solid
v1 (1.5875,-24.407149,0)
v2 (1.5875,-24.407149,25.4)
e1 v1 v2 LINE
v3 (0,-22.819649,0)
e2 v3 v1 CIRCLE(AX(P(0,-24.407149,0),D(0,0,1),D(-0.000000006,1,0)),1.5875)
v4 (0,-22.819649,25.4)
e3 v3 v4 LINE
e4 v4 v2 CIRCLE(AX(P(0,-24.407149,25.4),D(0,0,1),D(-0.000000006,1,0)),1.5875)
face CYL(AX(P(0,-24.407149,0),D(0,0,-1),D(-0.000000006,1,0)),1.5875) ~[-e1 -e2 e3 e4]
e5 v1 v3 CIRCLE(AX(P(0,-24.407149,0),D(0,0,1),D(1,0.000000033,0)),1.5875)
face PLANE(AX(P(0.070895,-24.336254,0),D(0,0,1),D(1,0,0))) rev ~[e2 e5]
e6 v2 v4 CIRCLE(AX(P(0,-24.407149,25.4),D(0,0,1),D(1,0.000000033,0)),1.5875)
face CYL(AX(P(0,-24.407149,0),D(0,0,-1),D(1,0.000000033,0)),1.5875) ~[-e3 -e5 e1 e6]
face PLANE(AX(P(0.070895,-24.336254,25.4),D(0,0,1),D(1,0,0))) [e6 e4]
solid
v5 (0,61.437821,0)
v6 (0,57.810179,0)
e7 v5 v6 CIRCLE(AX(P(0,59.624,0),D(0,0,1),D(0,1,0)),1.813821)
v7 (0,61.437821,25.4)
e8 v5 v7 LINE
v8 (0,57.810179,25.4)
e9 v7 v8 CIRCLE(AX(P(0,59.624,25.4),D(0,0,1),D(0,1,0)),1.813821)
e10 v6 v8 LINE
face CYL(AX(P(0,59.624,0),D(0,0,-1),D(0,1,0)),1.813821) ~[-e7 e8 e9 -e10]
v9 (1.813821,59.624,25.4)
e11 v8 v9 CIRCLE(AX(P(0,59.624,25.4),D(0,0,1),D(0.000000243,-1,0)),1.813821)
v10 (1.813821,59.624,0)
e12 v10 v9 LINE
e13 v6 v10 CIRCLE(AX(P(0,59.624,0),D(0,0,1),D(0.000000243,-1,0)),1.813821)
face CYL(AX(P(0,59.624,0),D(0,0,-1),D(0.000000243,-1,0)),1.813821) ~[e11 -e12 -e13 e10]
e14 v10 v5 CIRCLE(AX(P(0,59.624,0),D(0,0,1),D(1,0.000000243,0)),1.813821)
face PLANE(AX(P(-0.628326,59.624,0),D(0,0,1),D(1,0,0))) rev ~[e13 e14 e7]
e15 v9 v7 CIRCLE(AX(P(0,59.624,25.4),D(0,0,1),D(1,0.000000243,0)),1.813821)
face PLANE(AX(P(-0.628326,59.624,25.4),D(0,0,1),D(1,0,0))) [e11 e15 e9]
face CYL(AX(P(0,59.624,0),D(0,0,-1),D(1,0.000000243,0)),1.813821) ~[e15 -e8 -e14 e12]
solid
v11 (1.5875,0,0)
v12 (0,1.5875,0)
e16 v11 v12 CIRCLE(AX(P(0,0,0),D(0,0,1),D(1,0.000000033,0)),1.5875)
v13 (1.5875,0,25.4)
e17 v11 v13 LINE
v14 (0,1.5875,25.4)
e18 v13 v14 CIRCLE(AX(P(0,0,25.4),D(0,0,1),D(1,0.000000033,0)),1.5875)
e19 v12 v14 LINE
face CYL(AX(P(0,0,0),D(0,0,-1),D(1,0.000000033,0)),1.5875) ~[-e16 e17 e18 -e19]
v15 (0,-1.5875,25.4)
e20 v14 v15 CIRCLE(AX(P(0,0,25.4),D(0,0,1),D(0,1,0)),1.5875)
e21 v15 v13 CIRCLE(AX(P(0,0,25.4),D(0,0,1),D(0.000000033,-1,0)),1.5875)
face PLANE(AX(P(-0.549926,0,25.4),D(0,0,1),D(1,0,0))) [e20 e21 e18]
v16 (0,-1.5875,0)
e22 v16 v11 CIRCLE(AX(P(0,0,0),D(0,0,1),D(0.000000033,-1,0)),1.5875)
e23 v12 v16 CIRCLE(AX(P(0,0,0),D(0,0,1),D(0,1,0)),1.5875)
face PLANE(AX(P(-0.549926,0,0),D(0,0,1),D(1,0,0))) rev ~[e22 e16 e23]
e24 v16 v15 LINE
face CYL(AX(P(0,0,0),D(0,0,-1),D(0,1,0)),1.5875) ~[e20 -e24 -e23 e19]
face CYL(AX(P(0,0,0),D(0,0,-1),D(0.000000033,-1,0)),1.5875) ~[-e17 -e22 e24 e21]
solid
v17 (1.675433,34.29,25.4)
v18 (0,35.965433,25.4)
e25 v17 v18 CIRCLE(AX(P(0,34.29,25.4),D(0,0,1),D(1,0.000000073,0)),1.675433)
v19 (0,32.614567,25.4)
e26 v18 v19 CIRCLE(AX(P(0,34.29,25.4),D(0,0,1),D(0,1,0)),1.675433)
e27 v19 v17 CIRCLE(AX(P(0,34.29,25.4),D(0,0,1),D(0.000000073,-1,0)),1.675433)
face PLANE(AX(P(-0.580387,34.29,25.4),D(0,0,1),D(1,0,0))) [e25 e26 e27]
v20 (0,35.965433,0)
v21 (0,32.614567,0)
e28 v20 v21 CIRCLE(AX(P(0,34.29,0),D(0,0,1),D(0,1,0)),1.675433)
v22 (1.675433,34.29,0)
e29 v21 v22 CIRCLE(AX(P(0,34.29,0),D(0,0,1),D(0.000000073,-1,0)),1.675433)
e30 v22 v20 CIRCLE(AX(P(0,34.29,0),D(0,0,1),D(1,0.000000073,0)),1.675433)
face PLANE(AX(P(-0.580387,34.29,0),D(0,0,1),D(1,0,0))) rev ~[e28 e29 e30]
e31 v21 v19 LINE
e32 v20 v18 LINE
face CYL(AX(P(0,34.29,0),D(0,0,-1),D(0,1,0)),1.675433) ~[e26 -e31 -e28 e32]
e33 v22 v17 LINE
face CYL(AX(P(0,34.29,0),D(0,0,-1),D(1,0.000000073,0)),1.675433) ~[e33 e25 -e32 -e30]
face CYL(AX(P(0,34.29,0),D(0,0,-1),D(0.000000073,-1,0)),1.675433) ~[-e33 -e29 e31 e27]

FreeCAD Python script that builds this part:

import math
import FreeCAD as App
import Part
import Sketcher
from FreeCAD import Vector
Q = App.Units.Quantity

doc = App.newDocument("Part")
body = doc.addObject("PartDesign::Body", "Body")
body.AllowCompound = True

sketch1 = body.newObject("Sketcher::SketchObject", "Sketch")
sketch1.AttachmentSupport = (doc.getObject("XY_Plane"), [""])
sketch1.MapMode = "FlatFace"
sketch1.addGeometry([
    Part.ArcOfCircle(Part.Circle(Vector(0, 59.624, 0), Vector(0, 0, 1), 1.813821), math.radians(90), math.radians(270)),
    Part.ArcOfCircle(Part.Circle(Vector(0, 59.624, 0), Vector(0, 0, 1), 1.813821), math.radians(-89.999986), math.radians(-0.000014)),
    Part.ArcOfCircle(Part.Circle(Vector(0, 59.624, 0), Vector(0, 0, 1), 1.813821), math.radians(0.000014), math.radians(89.999986)),
    Part.ArcOfCircle(Part.Circle(Vector(0, 34.29, 0), Vector(0, 0, 1), 1.675433), math.radians(90), math.radians(270)),
    Part.ArcOfCircle(Part.Circle(Vector(0, 34.29, 0), Vector(0, 0, 1), 1.675433), math.radians(-89.999996), math.radians(-0.000004)),
    Part.ArcOfCircle(Part.Circle(Vector(0, 34.29, 0), Vector(0, 0, 1), 1.675433), math.radians(0.000004), math.radians(89.999996)),
    Part.ArcOfCircle(Part.Circle(Vector(0, 0, 0), Vector(0, 0, 1), 1.5875), math.radians(90), math.radians(270)),
    Part.ArcOfCircle(Part.Circle(Vector(0, 0, 0), Vector(0, 0, 1), 1.5875), math.radians(-89.999998), math.radians(-0.000002)),
    Part.ArcOfCircle(Part.Circle(Vector(0, 0, 0), Vector(0, 0, 1), 1.5875), math.radians(0.000002), math.radians(89.999998)),
    Part.ArcOfCircle(Part.Circle(Vector(0, -24.407149, 0), Vector(0, 0, 1), 1.5875), math.radians(0.000002), math.radians(89.999998)),
    Part.ArcOfCircle(Part.Circle(Vector(0, -24.407149, 0), Vector(0, 0, 1), 1.5875), math.radians(90), math.radians(360)),
], False)
sketch1.addConstraint([
    Sketcher.Constraint("Tangent", 0, 2, 1, 1),
    Sketcher.Constraint("Tangent", 1, 2, 2, 1),
    Sketcher.Constraint("Tangent", 2, 2, 0, 1),
    Sketcher.Constraint("Tangent", 3, 2, 4, 1),
    Sketcher.Constraint("Tangent", 4, 2, 5, 1),
    Sketcher.Constraint("Tangent", 5, 2, 3, 1),
    Sketcher.Constraint("Tangent", 6, 2, 7, 1),
    Sketcher.Constraint("Tangent", 7, 2, 8, 1),
    Sketcher.Constraint("Tangent", 8, 2, 6, 1),
    Sketcher.Constraint("Tangent", 9, 1, 10, 2),
    Sketcher.Constraint("Coincident", 10, 1, 9, 2),
    Sketcher.Constraint("Coincident", 6, 3, -1, 1),
    Sketcher.Constraint("Equal", 8, 9),
    Sketcher.Constraint("PointOnObject", 0, 3, -2),
    Sketcher.Constraint("PointOnObject", 3, 3, -2),
    Sketcher.Constraint("PointOnObject", 9, 3, -2),
    Sketcher.Constraint("PointOnObject", 0, 2, -2),
    Sketcher.Constraint("PointOnObject", 2, 2, -2),
    Sketcher.Constraint("PointOnObject", 3, 2, -2),
    Sketcher.Constraint("PointOnObject", 5, 2, -2),
    Sketcher.Constraint("PointOnObject", 6, 2, -2),
    Sketcher.Constraint("PointOnObject", 7, 2, -1),
    Sketcher.Constraint("PointOnObject", 8, 2, -2),
    Sketcher.Constraint("PointOnObject", 10, 1, -2),
    Sketcher.Constraint("Horizontal", 2, 3, 1, 2),
    Sketcher.Constraint("Horizontal", 5, 3, 4, 2),
    Sketcher.Constraint("Horizontal", 10, 3, 9, 1),
    Sketcher.Constraint("Radius", 6, Q("0.0625 in")),
    Sketcher.Constraint("DistanceY", -1, 1, 3, 3, Q("1.35 in")),
    Sketcher.Constraint("Radius", 0, 1.813821),
    Sketcher.Constraint("Radius", 3, 1.675433),
    Sketcher.Constraint("DistanceY", -1, 1, 0, 3, 59.624),
    Sketcher.Constraint("DistanceY", 9, 3, -1, 1, 24.407149),
])
pad1 = body.newObject("PartDesign::Pad", "Pad")
pad1.Profile = sketch1
pad1.Length = Q("1 in")

doc.recompute()
